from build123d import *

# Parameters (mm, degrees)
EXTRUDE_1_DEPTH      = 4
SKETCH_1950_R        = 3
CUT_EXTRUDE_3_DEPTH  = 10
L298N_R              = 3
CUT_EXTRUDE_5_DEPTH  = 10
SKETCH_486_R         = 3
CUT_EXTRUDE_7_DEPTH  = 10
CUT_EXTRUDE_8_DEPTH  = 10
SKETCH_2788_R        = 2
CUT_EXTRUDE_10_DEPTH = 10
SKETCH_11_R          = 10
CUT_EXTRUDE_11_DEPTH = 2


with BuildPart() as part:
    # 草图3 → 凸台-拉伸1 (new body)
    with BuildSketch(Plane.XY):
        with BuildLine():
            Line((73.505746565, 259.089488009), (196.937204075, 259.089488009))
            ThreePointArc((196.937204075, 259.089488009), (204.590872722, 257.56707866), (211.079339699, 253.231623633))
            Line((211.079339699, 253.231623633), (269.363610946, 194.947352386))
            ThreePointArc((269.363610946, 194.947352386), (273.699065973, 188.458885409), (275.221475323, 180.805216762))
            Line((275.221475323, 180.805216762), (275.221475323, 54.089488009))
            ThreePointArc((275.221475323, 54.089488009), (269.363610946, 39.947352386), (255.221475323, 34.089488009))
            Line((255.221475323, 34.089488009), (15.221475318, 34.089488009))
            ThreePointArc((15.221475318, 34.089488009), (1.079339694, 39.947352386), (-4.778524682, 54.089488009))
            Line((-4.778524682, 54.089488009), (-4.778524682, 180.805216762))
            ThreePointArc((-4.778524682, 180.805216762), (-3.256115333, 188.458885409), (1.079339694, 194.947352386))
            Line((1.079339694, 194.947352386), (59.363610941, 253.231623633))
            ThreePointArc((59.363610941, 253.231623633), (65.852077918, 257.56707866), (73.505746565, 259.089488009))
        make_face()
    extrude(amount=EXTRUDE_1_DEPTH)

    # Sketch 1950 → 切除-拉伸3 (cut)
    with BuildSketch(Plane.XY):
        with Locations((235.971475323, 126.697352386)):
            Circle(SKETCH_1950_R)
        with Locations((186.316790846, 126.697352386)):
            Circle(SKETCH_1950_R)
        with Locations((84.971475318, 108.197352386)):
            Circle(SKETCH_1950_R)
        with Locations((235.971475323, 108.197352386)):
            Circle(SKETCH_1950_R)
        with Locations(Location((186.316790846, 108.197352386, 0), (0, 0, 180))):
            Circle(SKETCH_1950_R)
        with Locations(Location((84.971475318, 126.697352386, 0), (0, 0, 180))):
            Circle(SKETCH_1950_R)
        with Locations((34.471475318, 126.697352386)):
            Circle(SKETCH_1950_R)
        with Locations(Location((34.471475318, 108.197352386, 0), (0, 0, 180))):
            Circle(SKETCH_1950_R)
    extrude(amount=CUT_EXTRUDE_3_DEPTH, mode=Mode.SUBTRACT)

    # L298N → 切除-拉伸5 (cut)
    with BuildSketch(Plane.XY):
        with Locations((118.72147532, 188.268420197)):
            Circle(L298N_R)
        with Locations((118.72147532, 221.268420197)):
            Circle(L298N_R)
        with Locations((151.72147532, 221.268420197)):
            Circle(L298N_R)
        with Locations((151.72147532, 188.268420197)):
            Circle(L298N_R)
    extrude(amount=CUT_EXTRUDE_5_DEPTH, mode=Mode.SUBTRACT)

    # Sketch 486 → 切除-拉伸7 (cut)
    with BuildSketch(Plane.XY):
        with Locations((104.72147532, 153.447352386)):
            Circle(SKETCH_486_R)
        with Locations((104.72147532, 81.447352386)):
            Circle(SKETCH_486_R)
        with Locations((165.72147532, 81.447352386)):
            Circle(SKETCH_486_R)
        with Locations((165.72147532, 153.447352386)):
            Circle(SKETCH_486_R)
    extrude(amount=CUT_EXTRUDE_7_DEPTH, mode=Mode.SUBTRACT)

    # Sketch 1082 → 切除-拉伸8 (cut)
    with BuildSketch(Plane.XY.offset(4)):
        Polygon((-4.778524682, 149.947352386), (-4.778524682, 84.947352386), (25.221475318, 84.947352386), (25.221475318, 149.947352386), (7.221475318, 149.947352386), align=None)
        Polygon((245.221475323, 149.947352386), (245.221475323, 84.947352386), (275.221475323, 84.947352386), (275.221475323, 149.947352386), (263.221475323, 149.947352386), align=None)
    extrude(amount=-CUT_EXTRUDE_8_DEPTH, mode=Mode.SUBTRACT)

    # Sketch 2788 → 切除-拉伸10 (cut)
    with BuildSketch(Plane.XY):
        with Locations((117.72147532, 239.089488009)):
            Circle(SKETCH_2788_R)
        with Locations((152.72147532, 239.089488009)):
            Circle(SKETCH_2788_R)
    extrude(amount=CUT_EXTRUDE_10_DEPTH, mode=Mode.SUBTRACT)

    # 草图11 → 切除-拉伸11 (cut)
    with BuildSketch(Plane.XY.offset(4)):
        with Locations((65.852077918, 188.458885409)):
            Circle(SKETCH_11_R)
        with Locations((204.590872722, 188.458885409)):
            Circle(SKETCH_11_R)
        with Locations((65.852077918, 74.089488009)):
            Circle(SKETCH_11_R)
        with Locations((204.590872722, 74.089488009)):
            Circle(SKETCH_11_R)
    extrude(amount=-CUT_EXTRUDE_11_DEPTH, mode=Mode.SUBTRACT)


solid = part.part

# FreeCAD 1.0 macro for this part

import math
import FreeCAD as App
import Part
import Sketcher

V = App.Vector

doc = App.newDocument("Part")
body = doc.addObject("PartDesign::Body", "Body")

# Sketch on XY plane
sketch1 = body.newObject("Sketcher::SketchObject", "Sketch")
sketch1.AttachmentSupport = (doc.getObject("XY_Plane"), [""])
sketch1.MapMode = "FlatFace"
sketch1.addGeometry([
    Part.LineSegment(V(197, 259, 0), V(74, 259, 0)),  # 0
    Part.ArcOfCircle(Part.Circle(V(74, 239, 0), V(0, 0, 1), 20), math.radians(90), math.radians(135)),  # 1
    Part.LineSegment(V(59, 253, 0), V(1, 195, 0)),  # 2
    Part.ArcOfCircle(Part.Circle(V(15, 181, 0), V(0, 0, 1), 20), math.radians(135), math.radians(180)),  # 3
    Part.LineSegment(V(-5, 181, 0), V(-5, 54, 0)),  # 4
    Part.ArcOfCircle(Part.Circle(V(15, 54, 0), V(0, 0, 1), 20), math.radians(-180), math.radians(-90)),  # 5
    Part.LineSegment(V(15, 34, 0), V(255, 34, 0)),  # 6
    Part.ArcOfCircle(Part.Circle(V(255, 54, 0), V(0, 0, 1), 20), math.radians(-90), math.radians(0)),  # 7
    Part.LineSegment(V(275, 54, 0), V(275, 181, 0)),  # 8
    Part.ArcOfCircle(Part.Circle(V(255, 181, 0), V(0, 0, 1), 20), math.radians(0), math.radians(45)),  # 9
    Part.LineSegment(V(269, 195, 0), V(211, 253, 0)),  # 10
    Part.ArcOfCircle(Part.Circle(V(197, 239, 0), V(0, 0, 1), 20), math.radians(45), math.radians(90)),  # 11
], False)
sketch1.addConstraint([
    Sketcher.Constraint("Tangent", 0, 2, 1, 1),
    Sketcher.Constraint("Tangent", 1, 2, 2, 1),
    Sketcher.Constraint("Tangent", 2, 2, 3, 1),
    Sketcher.Constraint("Tangent", 3, 2, 4, 1),
    Sketcher.Constraint("Tangent", 4, 2, 5, 1),
    Sketcher.Constraint("Tangent", 5, 2, 6, 1),
    Sketcher.Constraint("Tangent", 6, 2, 7, 1),
    Sketcher.Constraint("Tangent", 7, 2, 8, 1),
    Sketcher.Constraint("Tangent", 8, 2, 9, 1),
    Sketcher.Constraint("Tangent", 9, 2, 10, 1),
    Sketcher.Constraint("Tangent", 10, 2, 11, 1),
    Sketcher.Constraint("Tangent", 11, 2, 0, 1),
    Sketcher.Constraint("Horizontal", 0),
    Sketcher.Constraint("Vertical", 4),
    Sketcher.Constraint("Horizontal", 6),
    Sketcher.Constraint("Vertical", 8),
    Sketcher.Constraint("Equal", 1, 3),
    Sketcher.Constraint("Equal", 3, 5),
    Sketcher.Constraint("Equal", 5, 7),
    Sketcher.Constraint("Equal", 7, 9),
    Sketcher.Constraint("Equal", 9, 11),
    Sketcher.Constraint("Perpendicular", 2, 10),
    Sketcher.Constraint("Horizontal", 3, 3, 9, 3),
    Sketcher.Constraint("Horizontal", 2, 2, 9, 2),
    Sketcher.Constraint("Radius", 1, 20.0),
    Sketcher.Constraint("DistanceX", 6, 1, 6, 2, 240.0),
    Sketcher.Constraint("DistanceY", 5, 3, 1, 3, 185.0),
    Sketcher.Constraint("DistanceY", 4, 2, 4, 1, 126.715729),
    Sketcher.Constraint("DistanceY", -1, 1, 1, 3, 239.089488),
    Sketcher.Constraint("DistanceX", -1, 1, 1, 2, 59.363611),
])
pad1 = body.newObject("PartDesign::Pad", "Pad")
pad1.Profile = sketch1
pad1.Length = 4

# Sketch on XY plane
sketch2 = body.newObject("Sketcher::SketchObject", "Sketch001")
sketch2.AttachmentSupport = (doc.getObject("XY_Plane"), [""])
sketch2.MapMode = "FlatFace"
sketch2.addGeometry([
    Part.Circle(V(236, 126.7, 0), V(0, 0, 1), 3),  # 0
    Part.Circle(V(186.3, 126.7, 0), V(0, 0, 1), 3),  # 1
    Part.Circle(V(85, 108.2, 0), V(0, 0, 1), 3),  # 2
    Part.Circle(V(236, 108.2, 0), V(0, 0, 1), 3),  # 3
    Part.Circle(V(186.3, 108.2, 0), V(0, 0, 1), 3),  # 4
    Part.Circle(V(85, 126.7, 0), V(0, 0, 1), 3),  # 5
    Part.Circle(V(34.5, 126.7, 0), V(0, 0, 1), 3),  # 6
    Part.Circle(V(34.5, 108.2, 0), V(0, 0, 1), 3),  # 7
], False)
sketch2.addConstraint([
    Sketcher.Constraint("Equal", 0, 1),
    Sketcher.Constraint("Equal", 1, 2),
    Sketcher.Constraint("Equal", 2, 3),
    Sketcher.Constraint("Equal", 3, 4),
    Sketcher.Constraint("Equal", 4, 5),
    Sketcher.Constraint("Equal", 5, 6),
    Sketcher.Constraint("Equal", 6, 7),
    Sketcher.Constraint("Horizontal", 0, 3, 1, 3),
    Sketcher.Constraint("Horizontal", 2, 3, 3, 3),
    Sketcher.Constraint("Horizontal", 3, 3, 4, 3),
    Sketcher.Constraint("Horizontal", 1, 3, 5, 3),
    Sketcher.Constraint("Horizontal", 5, 3, 6, 3),
    Sketcher.Constraint("Horizontal", 4, 3, 7, 3),
    Sketcher.Constraint("Vertical", 0, 3, 3, 3),
    Sketcher.Constraint("Vertical", 1, 3, 4, 3),
    Sketcher.Constraint("Vertical", 2, 3, 5, 3),
    Sketcher.Constraint("Vertical", 6, 3, 7, 3),
    Sketcher.Constraint("Diameter", 0, 6.0),
    Sketcher.Constraint("DistanceX", 2, 3, 0, 3, 151.0),
    Sketcher.Constraint("DistanceY", 2, 3, 1, 3, 18.5),
    Sketcher.Constraint("DistanceX", 6, 3, 5, 3, 50.5),
    Sketcher.Constraint("DistanceX", -1, 1, 1, 3, 186.316791),
    Sketcher.Constraint("DistanceX", -1, 1, 0, 3, 235.971475),
    Sketcher.Constraint("DistanceY", -1, 1, 0, 3, 126.697352),
])
pocket1 = body.newObject("PartDesign::Pocket", "Pocket")
pocket1.Profile = sketch2
pocket1.Length = 10
pocket1.Reversed = True

# Sketch on XY plane
sketch3 = body.newObject("Sketcher::SketchObject", "Sketch002")
sketch3.AttachmentSupport = (doc.getObject("XY_Plane"), [""])
sketch3.MapMode = "FlatFace"
sketch3.addGeometry([
    Part.Circle(V(118.7, 188.3, 0), V(0, 0, 1), 3),
    Part.Circle(V(118.7, 221.3, 0), V(0, 0, 1), 3),
    Part.Circle(V(151.7, 221.3, 0), V(0, 0, 1), 3),
    Part.Circle(V(151.7, 188.3, 0), V(0, 0, 1), 3),
], False)
sketch3.addConstraint([
    Sketcher.Constraint("Equal", 0, 1),
    Sketcher.Constraint("Equal", 1, 2),
    Sketcher.Constraint("Equal", 2, 3),
    Sketcher.Constraint("Horizontal", 1, 3, 2, 3),
    Sketcher.Constraint("Horizontal", 0, 3, 3, 3),
    Sketcher.Constraint("Vertical", 0, 3, 1, 3),
    Sketcher.Constraint("Vertical", 2, 3, 3, 3),
    Sketcher.Constraint("Diameter", 0, 6.0),
    Sketcher.Constraint("DistanceY", 0, 3, 1, 3, 33.0),
    Sketcher.Constraint("DistanceX", 1, 3, 2, 3, 33.0),
    Sketcher.Constraint("DistanceY", -1, 1, 0, 3, 188.26842),
    Sketcher.Constraint("DistanceX", -1, 1, 0, 3, 118.721475),
])
pocket2 = body.newObject("PartDesign::Pocket", "Pocket001")
pocket2.Profile = sketch3
pocket2.Length = 10
pocket2.Reversed = True

# Sketch on XY plane
sketch4 = body.newObject("Sketcher::SketchObject", "Sketch003")
sketch4.AttachmentSupport = (doc.getObject("XY_Plane"), [""])
sketch4.MapMode = "FlatFace"
sketch4.addGeometry([
    Part.Circle(V(104.7, 153.4, 0), V(0, 0, 1), 3),
    Part.Circle(V(104.7, 81.4, 0), V(0, 0, 1), 3),
    Part.Circle(V(165.7, 81.4, 0), V(0, 0, 1), 3),
    Part.Circle(V(165.7, 153.4, 0), V(0, 0, 1), 3),
], False)
sketch4.addConstraint([
    Sketcher.Constraint("Equal", 0, 1),
    Sketcher.Constraint("Equal", 1, 2),
    Sketcher.Constraint("Equal", 2, 3),
    Sketcher.Constraint("Horizontal", 1, 3, 2, 3),
    Sketcher.Constraint("Horizontal", 0, 3, 3, 3),
    Sketcher.Constraint("Vertical", 0, 3, 1, 3),
    Sketcher.Constraint("Vertical", 2, 3, 3, 3),
    Sketcher.Constraint("Diameter", 0, 6.0),
    Sketcher.Constraint("DistanceY", 1, 3, 0, 3, 72.0),
    Sketcher.Constraint("DistanceX", 1, 3, 2, 3, 61.0),
    Sketcher.Constraint("DistanceX", -1, 1, 0, 3, 104.721475),
    Sketcher.Constraint("DistanceY", -1, 1, 0, 3, 153.447352),
])
pocket3 = body.newObject("PartDesign::Pocket", "Pocket002")
pocket3.Profile = sketch4
pocket3.Length = 10
pocket3.Reversed = True

# Sketch on XY plane
sketch5 = body.newObject("Sketcher::SketchObject", "Sketch004")
sketch5.AttachmentSupport = (doc.getObject("XY_Plane"), [""])
sketch5.MapMode = "FlatFace"
sketch5.AttachmentOffset = App.Placement(V(0, 0, 4), App.Rotation())
sketch5.addGeometry([
    Part.LineSegment(V(-5, 150, 0), V(-5, 85, 0)),  # 0
    Part.LineSegment(V(-5, 85, 0), V(25, 85, 0)),  # 1
    Part.LineSegment(V(25, 85, 0), V(25, 150, 0)),  # 2
    Part.LineSegment(V(25, 150, 0), V(-5, 150, 0)),  # 3
    Part.LineSegment(V(245, 150, 0), V(245, 85, 0)),  # 4
    Part.LineSegment(V(245, 85, 0), V(275, 85, 0)),  # 5
    Part.LineSegment(V(275, 85, 0), V(275, 150, 0)),  # 6
    Part.LineSegment(V(275, 150, 0), V(245, 150, 0)),  # 7
], False)
sketch5.addConstraint([
    Sketcher.Constraint("Coincident", 0, 2, 1, 1),
    Sketcher.Constraint("Coincident", 1, 2, 2, 1),
    Sketcher.Constraint("Coincident", 2, 2, 3, 1),
    Sketcher.Constraint("Coincident", 3, 2, 0, 1),
    Sketcher.Constraint("Coincident", 4, 2, 5, 1),
    Sketcher.Constraint("Coincident", 5, 2, 6, 1),
    Sketcher.Constraint("Coincident", 6, 2, 7, 1),
    Sketcher.Constraint("Coincident", 7, 2, 4, 1),
    Sketcher.Constraint("Vertical", 0),
    Sketcher.Constraint("Horizontal", 1),
    Sketcher.Constraint("Vertical", 2),
    Sketcher.Constraint("Horizontal", 3),
    Sketcher.Constraint("Vertical", 4),
    Sketcher.Constraint("Horizontal", 5),
    Sketcher.Constraint("Vertical", 6),
    Sketcher.Constraint("Horizontal", 7),
    Sketcher.Constraint("Horizontal", 1, 2, 4, 2),
    Sketcher.Constraint("Horizontal", 3, 2, 6, 2),
    Sketcher.Constraint("Equal", 3, 5),
    Sketcher.Constraint("DistanceX", 1, 1, 1, 2, 30.0),
    Sketcher.Constraint("DistanceY", 0, 2, 0, 1, 65.0),
    Sketcher.Constraint("DistanceX", 1, 2, 4, 2, 220.0),
    Sketcher.Constraint("DistanceX", 0, 2, -1, 1, 4.778525),
    Sketcher.Constraint("DistanceY", -1, 1, 0, 2, 84.947352),
])
pocket4 = body.newObject("PartDesign::Pocket", "Pocket003")
pocket4.Profile = sketch5
pocket4.Length = 10

# Sketch on XY plane
sketch6 = body.newObject("Sketcher::SketchObject", "Sketch005")
sketch6.AttachmentSupport = (doc.getObject("XY_Plane"), [""])
sketch6.MapMode = "FlatFace"
sketch6.addGeometry([
    Part.Circle(V(117.7, 239.1, 0), V(0, 0, 1), 2),
    Part.Circle(V(152.7, 239.1, 0), V(0, 0, 1), 2),
], False)
sketch6.addConstraint([
    Sketcher.Constraint("Equal", 0, 1),
    Sketcher.Constraint("Horizontal", 0, 3, 1, 3),
    Sketcher.Constraint("Diameter", 0, 4.0),
    Sketcher.Constraint("DistanceX", 0, 3, 1, 3, 35.0),
    Sketcher.Constraint("DistanceY", -1, 1, 0, 3, 239.089488),
    Sketcher.Constraint("DistanceX", -1, 1, 0, 3, 117.721475),
])
pocket5 = body.newObject("PartDesign::Pocket", "Pocket004")
pocket5.Profile = sketch6
pocket5.Length = 10
pocket5.Reversed = True

# Sketch on XY plane
sketch7 = body.newObject("Sketcher::SketchObject", "Sketch006")
sketch7.AttachmentSupport = (doc.getObject("XY_Plane"), [""])
sketch7.MapMode = "FlatFace"
sketch7.AttachmentOffset = App.Placement(V(0, 0, 4), App.Rotation())
sketch7.addGeometry([
    Part.Circle(V(66, 188, 0), V(0, 0, 1), 10),
    Part.Circle(V(205, 188, 0), V(0, 0, 1), 10),
    Part.Circle(V(66, 74, 0), V(0, 0, 1), 10),
    Part.Circle(V(205, 74, 0), V(0, 0, 1), 10),
], False)
sketch7.addConstraint([
    Sketcher.Constraint("Equal", 0, 1),
    Sketcher.Constraint("Equal", 1, 2),
    Sketcher.Constraint("Equal", 2, 3),
    Sketcher.Constraint("Horizontal", 0, 3, 1, 3),
    Sketcher.Constraint("Horizontal", 2, 3, 3, 3),
    Sketcher.Constraint("Vertical", 0, 3, 2, 3),
    Sketcher.Constraint("Vertical", 1, 3, 3, 3),
    Sketcher.Constraint("Diameter", 0, 20.0),
    Sketcher.Constraint("DistanceY", -1, 1, 2, 3, 74.089488),
    Sketcher.Constraint("DistanceX", -1, 1, 0, 3, 65.852078),
    Sketcher.Constraint("DistanceY", -1, 1, 0, 3, 188.458885),
    Sketcher.Constraint("DistanceX", -1, 1, 1, 3, 204.590873),
])
pocket6 = body.newObject("PartDesign::Pocket", "Pocket005")
pocket6.Profile = sketch7
pocket6.Length = 2

doc.recompute()
